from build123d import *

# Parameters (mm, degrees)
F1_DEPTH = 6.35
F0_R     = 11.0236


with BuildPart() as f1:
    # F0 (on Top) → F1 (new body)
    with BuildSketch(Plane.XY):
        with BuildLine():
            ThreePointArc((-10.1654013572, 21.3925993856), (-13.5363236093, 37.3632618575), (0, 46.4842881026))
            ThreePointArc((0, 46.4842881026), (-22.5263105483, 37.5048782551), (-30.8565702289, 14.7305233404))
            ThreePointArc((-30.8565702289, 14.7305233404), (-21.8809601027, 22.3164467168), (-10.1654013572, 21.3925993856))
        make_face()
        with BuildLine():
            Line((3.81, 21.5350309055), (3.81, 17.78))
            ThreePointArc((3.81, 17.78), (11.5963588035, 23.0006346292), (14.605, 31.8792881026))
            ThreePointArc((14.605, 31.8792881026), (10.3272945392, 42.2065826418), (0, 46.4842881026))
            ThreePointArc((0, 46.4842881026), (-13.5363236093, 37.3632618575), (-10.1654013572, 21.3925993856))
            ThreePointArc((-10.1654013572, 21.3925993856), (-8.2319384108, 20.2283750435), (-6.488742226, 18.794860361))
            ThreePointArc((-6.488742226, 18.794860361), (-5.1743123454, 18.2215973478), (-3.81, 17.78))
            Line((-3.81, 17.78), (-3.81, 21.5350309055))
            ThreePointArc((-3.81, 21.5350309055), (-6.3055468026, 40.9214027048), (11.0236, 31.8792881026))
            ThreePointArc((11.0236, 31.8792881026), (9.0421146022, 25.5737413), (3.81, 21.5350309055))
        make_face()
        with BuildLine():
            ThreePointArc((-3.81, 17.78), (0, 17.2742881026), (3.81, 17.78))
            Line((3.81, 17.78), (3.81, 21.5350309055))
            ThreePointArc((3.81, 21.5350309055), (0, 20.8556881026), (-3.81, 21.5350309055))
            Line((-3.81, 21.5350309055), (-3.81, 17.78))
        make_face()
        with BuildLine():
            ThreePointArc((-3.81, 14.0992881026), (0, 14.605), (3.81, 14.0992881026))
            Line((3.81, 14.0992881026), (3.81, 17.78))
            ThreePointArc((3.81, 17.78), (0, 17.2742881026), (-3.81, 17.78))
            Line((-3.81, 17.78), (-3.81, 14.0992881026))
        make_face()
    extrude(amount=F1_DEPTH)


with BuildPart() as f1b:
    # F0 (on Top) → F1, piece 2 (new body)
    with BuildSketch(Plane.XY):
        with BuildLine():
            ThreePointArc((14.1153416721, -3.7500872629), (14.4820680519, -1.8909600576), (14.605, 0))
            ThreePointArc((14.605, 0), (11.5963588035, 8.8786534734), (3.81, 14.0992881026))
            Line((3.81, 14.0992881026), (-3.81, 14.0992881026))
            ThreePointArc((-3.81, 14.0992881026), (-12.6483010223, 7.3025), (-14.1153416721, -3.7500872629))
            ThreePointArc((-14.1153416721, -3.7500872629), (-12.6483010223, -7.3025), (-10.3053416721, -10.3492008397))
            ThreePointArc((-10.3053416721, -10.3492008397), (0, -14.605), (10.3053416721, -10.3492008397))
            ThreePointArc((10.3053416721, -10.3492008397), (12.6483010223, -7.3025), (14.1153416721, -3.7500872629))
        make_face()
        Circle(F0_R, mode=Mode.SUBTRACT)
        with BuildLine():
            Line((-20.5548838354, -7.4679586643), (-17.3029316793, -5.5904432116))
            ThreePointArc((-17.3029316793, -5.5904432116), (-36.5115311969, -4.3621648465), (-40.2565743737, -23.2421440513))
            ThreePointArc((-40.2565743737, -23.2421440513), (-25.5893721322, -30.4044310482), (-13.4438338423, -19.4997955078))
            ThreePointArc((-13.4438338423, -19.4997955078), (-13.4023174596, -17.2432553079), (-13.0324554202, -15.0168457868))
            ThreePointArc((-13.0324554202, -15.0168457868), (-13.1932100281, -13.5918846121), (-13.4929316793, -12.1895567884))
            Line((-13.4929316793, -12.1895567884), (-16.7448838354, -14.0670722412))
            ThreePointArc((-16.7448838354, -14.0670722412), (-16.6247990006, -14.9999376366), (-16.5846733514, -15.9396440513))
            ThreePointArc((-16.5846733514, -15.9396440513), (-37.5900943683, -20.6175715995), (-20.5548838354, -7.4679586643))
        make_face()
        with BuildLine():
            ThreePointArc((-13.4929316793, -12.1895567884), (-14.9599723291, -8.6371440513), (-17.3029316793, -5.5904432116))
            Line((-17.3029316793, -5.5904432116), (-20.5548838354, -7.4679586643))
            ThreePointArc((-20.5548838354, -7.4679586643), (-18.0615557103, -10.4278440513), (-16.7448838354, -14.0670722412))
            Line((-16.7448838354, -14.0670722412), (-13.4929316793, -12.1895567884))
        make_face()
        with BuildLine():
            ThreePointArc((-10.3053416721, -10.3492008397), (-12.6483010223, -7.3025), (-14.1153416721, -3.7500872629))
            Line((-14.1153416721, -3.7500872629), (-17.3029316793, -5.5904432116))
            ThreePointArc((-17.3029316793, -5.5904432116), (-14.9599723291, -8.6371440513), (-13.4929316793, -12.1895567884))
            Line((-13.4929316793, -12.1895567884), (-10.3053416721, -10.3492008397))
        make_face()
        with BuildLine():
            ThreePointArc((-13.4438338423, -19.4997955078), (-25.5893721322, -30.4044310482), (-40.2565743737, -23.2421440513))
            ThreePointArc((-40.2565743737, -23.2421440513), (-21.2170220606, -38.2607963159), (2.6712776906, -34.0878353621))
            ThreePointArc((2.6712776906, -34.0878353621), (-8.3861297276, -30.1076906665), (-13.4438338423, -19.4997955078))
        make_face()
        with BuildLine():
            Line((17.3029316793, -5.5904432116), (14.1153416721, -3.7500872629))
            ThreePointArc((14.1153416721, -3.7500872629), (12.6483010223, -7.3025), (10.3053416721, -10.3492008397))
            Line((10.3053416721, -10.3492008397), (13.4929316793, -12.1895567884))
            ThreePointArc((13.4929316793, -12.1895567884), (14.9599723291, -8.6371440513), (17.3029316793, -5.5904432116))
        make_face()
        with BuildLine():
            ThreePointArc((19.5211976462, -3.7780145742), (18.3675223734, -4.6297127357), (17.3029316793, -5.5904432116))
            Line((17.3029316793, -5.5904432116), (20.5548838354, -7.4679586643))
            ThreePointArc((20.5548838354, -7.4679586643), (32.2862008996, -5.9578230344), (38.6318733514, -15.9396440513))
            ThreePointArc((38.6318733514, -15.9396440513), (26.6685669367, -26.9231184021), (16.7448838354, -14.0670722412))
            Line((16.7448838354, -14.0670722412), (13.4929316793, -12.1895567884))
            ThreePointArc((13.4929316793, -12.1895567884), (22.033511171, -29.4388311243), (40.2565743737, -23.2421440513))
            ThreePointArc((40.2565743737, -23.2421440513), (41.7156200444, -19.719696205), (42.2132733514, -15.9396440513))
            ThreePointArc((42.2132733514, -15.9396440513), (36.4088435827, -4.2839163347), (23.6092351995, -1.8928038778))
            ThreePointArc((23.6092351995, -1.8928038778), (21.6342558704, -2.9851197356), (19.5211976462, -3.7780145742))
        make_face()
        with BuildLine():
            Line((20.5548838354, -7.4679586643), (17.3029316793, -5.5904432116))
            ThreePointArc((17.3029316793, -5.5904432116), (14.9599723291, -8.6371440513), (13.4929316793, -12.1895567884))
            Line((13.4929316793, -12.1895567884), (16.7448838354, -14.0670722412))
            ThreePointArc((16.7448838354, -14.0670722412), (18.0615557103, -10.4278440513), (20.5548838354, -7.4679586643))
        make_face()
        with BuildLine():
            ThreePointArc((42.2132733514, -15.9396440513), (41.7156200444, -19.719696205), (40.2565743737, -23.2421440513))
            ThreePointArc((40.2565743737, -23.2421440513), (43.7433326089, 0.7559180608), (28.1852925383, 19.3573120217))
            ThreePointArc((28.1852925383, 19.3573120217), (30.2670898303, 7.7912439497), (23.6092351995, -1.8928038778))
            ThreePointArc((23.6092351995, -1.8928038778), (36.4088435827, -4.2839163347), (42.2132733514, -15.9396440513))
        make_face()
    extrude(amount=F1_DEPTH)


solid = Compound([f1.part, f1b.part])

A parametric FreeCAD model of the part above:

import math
import FreeCAD as App
import Part
import Sketcher
from FreeCAD import Vector
Q = App.Units.Quantity

doc = App.newDocument("Part")
body = doc.addObject("PartDesign::Body", "Body")

# Sketch on XY plane
sketch1 = body.newObject("Sketcher::SketchObject", "Sketch")
sketch1.AttachmentSupport = (doc.getObject("XY_Plane"), [""])
sketch1.MapMode = "FlatFace"
sketch1.addGeometry(Part.ArcOfCircle(Part.Circle(Vector(-1.2, 16.8, 0), Vector(0, 0, 1), 29.7), math.radians(88), math.radians(184)), False)
sketch1.addGeometry(Part.ArcOfCircle(Part.Circle(Vector(-17.1, 7.6, 0), Vector(0, 0, 1), 15.4), math.radians(46), math.radians(153)), False)
sketch1.addGeometry(Part.ArcOfCircle(Part.Circle(Vector(0, 31.9, 0), Vector(0, 0, 1), 14.6), math.radians(-116.38), math.radians(-105.12)), False)
sketch1.addGeometry(Part.LineSegment(Vector(-3.8, 17.8, 0), Vector(-3.8, 14.1, 0)), False)
sketch1.addGeometry(Part.ArcOfCircle(Part.Circle(Vector(0, 0, 0), Vector(0, 0, 1), 14.6), math.radians(75), math.radians(105)), False)
sketch1.addGeometry(Part.LineSegment(Vector(3.8, 14.1, 0), Vector(3.8, 17.8, 0)), False)
sketch1.addGeometry(Part.ArcOfCircle(Part.Circle(Vector(0, 31.9, 0), Vector(0, 0, 1), 14.6), math.radians(-75), math.radians(0)), False)
sketch1.addGeometry(Part.ArcOfCircle(Part.Circle(Vector(0, 31.9, 0), Vector(0, 0, 1), 14.6), math.radians(0), math.radians(90)), False)
sketch1.addGeometry(Part.ArcOfCircle(Part.Circle(Vector(0, 31.9, 0), Vector(0, 0, 1), 11), math.radians(0), math.radians(250)), False)
sketch1.addGeometry(Part.ArcOfCircle(Part.Circle(Vector(0, 31.9, 0), Vector(0, 0, 1), 11), math.radians(-70), math.radians(0)), False)
sketch1.addGeometry(Part.ArcOfCircle(Part.Circle(Vector(0, 31.9, 0), Vector(0, 0, 1), 11), math.radians(-110), math.radians(-70)), False)
sketch1.addConstraint(Sketcher.Constraint("Coincident", 0, 2, 1, 2))
sketch1.addConstraint(Sketcher.Constraint("Coincident", 1, 1, 2, 1))
sketch1.addConstraint(Sketcher.Constraint("Coincident", 2, 2, 3, 1))
sketch1.addConstraint(Sketcher.Constraint("Coincident", 3, 2, 4, 2))
sketch1.addConstraint(Sketcher.Constraint("Coincident", 4, 1, 5, 1))
sketch1.addConstraint(Sketcher.Constraint("Coincident", 5, 2, 6, 1))
sketch1.addConstraint(Sketcher.Constraint("Tangent", 6, 2, 7, 1))
sketch1.addConstraint(Sketcher.Constraint("Coincident", 7, 2, 0, 1))
sketch1.addConstraint(Sketcher.Constraint("Tangent", 8, 1, 9, 2))
sketch1.addConstraint(Sketcher.Constraint("Tangent", 9, 1, 10, 2))
sketch1.addConstraint(Sketcher.Constraint("Tangent", 10, 1, 8, 2))
sketch1.addConstraint(Sketcher.Constraint("Vertical", 3))
sketch1.addConstraint(Sketcher.Constraint("Vertical", 5))
sketch1.addConstraint(Sketcher.Constraint("Coincident", 4, 3, -1, 1))
sketch1.addConstraint(Sketcher.Constraint("Coincident", 6, 3, 2, 3))
sketch1.addConstraint(Sketcher.Constraint("Coincident", 8, 3, 2, 3))
sketch1.addConstraint(Sketcher.Constraint("Equal", 2, 4))
sketch1.addConstraint(Sketcher.Constraint("Equal", 4, 6))
sketch1.addConstraint(Sketcher.Constraint("Equal", 6, 7))
sketch1.addConstraint(Sketcher.Constraint("Symmetric", 2, 2, 5, 2, -2))
sketch1.addConstraint(Sketcher.Constraint("PointOnObject", 7, 2, -2))
sketch1.addConstraint(Sketcher.Constraint("Horizontal", 10, 3, 6, 2))
sketch1.addConstraint(Sketcher.Constraint("Horizontal", 6, 2, 8, 1))
sketch1.addConstraint(Sketcher.Constraint("Horizontal", 9, 1, 10, 1))
sketch1.addConstraint(Sketcher.Constraint("Vertical", 5, 2, 9, 1))
sketch1.addConstraint(Sketcher.Constraint("Radius", 2, Q("0.575 in")))
sketch1.addConstraint(Sketcher.Constraint("Radius", 8, Q("0.434 in")))
sketch1.addConstraint(Sketcher.Constraint("DistanceY", -1, 1, 2, 2, Q("0.7 in")))
sketch1.addConstraint(Sketcher.Constraint("DistanceX", 3, 2, 4, 1, Q("0.3 in")))
sketch1.addConstraint(Sketcher.Constraint("Radius", 1, Q("15.448309 mm")))
sketch1.addConstraint(Sketcher.Constraint("Radius", 0, Q("29.708245 mm")))
sketch1.addConstraint(Sketcher.Constraint("DistanceX", 0, 2, 0, 3, Q("29.635999 mm")))
sketch1.addConstraint(Sketcher.Constraint("DistanceX", 0, 3, -1, 1, Q("1.220571 mm")))
sketch1.addConstraint(Sketcher.Constraint("DistanceX", 1, 3, -1, 1, Q("17.14633 mm")))
pad1 = body.newObject("PartDesign::Pad", "Pad")
pad1.Profile = sketch1
pad1.Length = Q("0.25 in")
body2 = doc.addObject("PartDesign::Body", "Body001")

# Sketch on XY plane
sketch2 = body2.newObject("Sketcher::SketchObject", "Sketch001")
sketch2.AttachmentSupport = (doc.getObject("XY_Plane001"), [""])
sketch2.MapMode = "FlatFace"
sketch2.addGeometry(Part.ArcOfCircle(Part.Circle(Vector(0, 0, 0), Vector(0, 0, 1), 14.6), math.radians(-14.88), math.radians(0)), False)
sketch2.addGeometry(Part.ArcOfCircle(Part.Circle(Vector(0, 0, 0), Vector(0, 0, 1), 14.6), math.radians(0), math.radians(75)), False)
sketch2.addGeometry(Part.LineSegment(Vector(3.8, 14.1, 0), Vector(-3.8, 14.1, 0)), False)
sketch2.addGeometry(Part.ArcOfCircle(Part.Circle(Vector(0, 0, 0), Vector(0, 0, 1), 14.6), math.radians(105), math.radians(195)), False)
sketch2.addGeometry(Part.LineSegment(Vector(-14.1, -3.8, 0), Vector(-17.3, -5.6, 0)), False)
sketch2.addGeometry(Part.ArcOfCircle(Part.Circle(Vector(-27.6, -15.9, 0), Vector(0, 0, 1), 14.6), math.radians(45), math.radians(210)), False)
sketch2.addGeometry(Part.ArcOfCircle(Part.Circle(Vector(-13.9, -9.5, 0), Vector(0, 0, 1), 29.7), math.radians(-152), math.radians(-56)), False)
sketch2.addGeometry(Part.ArcOfCircle(Part.Circle(Vector(2, -18.7, 0), Vector(0, 0, 1), 15.4), math.radians(-177), math.radians(-87)), False)
sketch2.addGeometry(Part.ArcOfCircle(Part.Circle(Vector(2, -18.7, 0), Vector(0, 0, 1), 15.4), math.radians(166.38), math.radians(183.14)), False)
sketch2.addGeometry(Part.ArcOfCircle(Part.Circle(Vector(-27.6, -15.9, 0), Vector(0, 0, 1), 14.6), math.radians(3.62), math.radians(14.88)), False)
sketch2.addGeometry(Part.LineSegment(Vector(-13.5, -12.2, 0), Vector(-10.3, -10.3, 0)), False)
sketch2.addGeometry(Part.ArcOfCircle(Part.Circle(Vector(0, 0, 0), Vector(0, 0, 1), 14.6), math.radians(-135), math.radians(-45)), False)
sketch2.addGeometry(Part.LineSegment(Vector(10.3, -10.3, 0), Vector(13.5, -12.2, 0)), False)
sketch2.addGeometry(Part.ArcOfCircle(Part.Circle(Vector(27.6, -15.9, 0), Vector(0, 0, 1), 14.6), math.radians(165), math.radians(330)), False)
sketch2.addGeometry(Part.ArcOfCircle(Part.Circle(Vector(15.2, -7.3, 0), Vector(0, 0, 1), 29.7), math.radians(-32), math.radians(64)), False)
sketch2.addGeometry(Part.ArcOfCircle(Part.Circle(Vector(15.2, 11, 0), Vector(0, 0, 1), 15.4), math.radians(-57), math.radians(33)), False)
sketch2.addGeometry(Part.ArcOfCircle(Part.Circle(Vector(15.2, 11, 0), Vector(0, 0, 1), 15.4), math.radians(-73.62), math.radians(-56.86)), False)
sketch2.addGeometry(Part.ArcOfCircle(Part.Circle(Vector(27.6, -15.9, 0), Vector(0, 0, 1), 14.6), math.radians(123.62), math.radians(134.88)), False)
sketch2.addGeometry(Part.LineSegment(Vector(17.3, -5.6, 0), Vector(14.1, -3.8, 0)), False)
sketch2.addGeometry(Part.Circle(Vector(0, 0, 0), Vector(0, 0, 1), 11), False)
sketch2.addGeometry(Part.ArcOfCircle(Part.Circle(Vector(-27.6, -15.9, 0), Vector(0, 0, 1), 11), math.radians(10), math.radians(50)), False)
sketch2.addGeometry(Part.ArcOfCircle(Part.Circle(Vector(-27.6, -15.9, 0), Vector(0, 0, 1), 11), math.radians(0), math.radians(9.78)), False)
sketch2.addGeometry(Part.ArcOfCircle(Part.Circle(Vector(-27.6, -15.9, 0), Vector(0, 0, 1), 11), math.radians(50), math.radians(360)), False)
sketch2.addGeometry(Part.ArcOfCircle(Part.Circle(Vector(27.6, -15.9, 0), Vector(0, 0, 1), 11), math.radians(130), math.radians(170)), False)
sketch2.addGeometry(Part.ArcOfCircle(Part.Circle(Vector(27.6, -15.9, 0), Vector(0, 0, 1), 11), math.radians(0), math.radians(130)), False)
sketch2.addGeometry(Part.ArcOfCircle(Part.Circle(Vector(27.6, -15.9, 0), Vector(0, 0, 1), 11), math.radians(170), math.radians(360)), False)
sketch2.addConstraint(Sketcher.Constraint("Tangent", 0, 2, 1, 1))
sketch2.addConstraint(Sketcher.Constraint("Coincident", 1, 2, 2, 1))
sketch2.addConstraint(Sketcher.Constraint("Coincident", 2, 2, 3, 1))
sketch2.addConstraint(Sketcher.Constraint("Coincident", 3, 2, 4, 1))
sketch2.addConstraint(Sketcher.Constraint("Coincident", 4, 2, 5, 1))
sketch2.addConstraint(Sketcher.Constraint("Coincident", 5, 2, 6, 1))
sketch2.addConstraint(Sketcher.Constraint("Coincident", 6, 2, 7, 2))
sketch2.addConstraint(Sketcher.Constraint("Tangent", 7, 1, 8, 2))
sketch2.addConstraint(Sketcher.Constraint("Coincident", 8, 1, 9, 1))
sketch2.addConstraint(Sketcher.Constraint("Coincident", 9, 2, 10, 1))
sketch2.addConstraint(Sketcher.Constraint("Coincident", 10, 2, 11, 1))
sketch2.addConstraint(Sketcher.Constraint("Coincident", 11, 2, 12, 1))
sketch2.addConstraint(Sketcher.Constraint("Coincident", 12, 2, 13, 1))
sketch2.addConstraint(Sketcher.Constraint("Coincident", 13, 2, 14, 1))
sketch2.addConstraint(Sketcher.Constraint("Coincident", 14, 2, 15, 2))
sketch2.addConstraint(Sketcher.Constraint("Tangent", 15, 1, 16, 2))
sketch2.addConstraint(Sketcher.Constraint("Coincident", 16, 1, 17, 1))
sketch2.addConstraint(Sketcher.Constraint("Coincident", 17, 2, 18, 1))
sketch2.addConstraint(Sketcher.Constraint("Coincident", 18, 2, 0, 1))
sketch2.addConstraint(Sketcher.Constraint("Tangent", 20, 1, 21, 2))
sketch2.addConstraint(Sketcher.Constraint("Tangent", 21, 1, 22, 2))
sketch2.addConstraint(Sketcher.Constraint("Tangent", 22, 1, 20, 2))
sketch2.addConstraint(Sketcher.Constraint("Tangent", 23, 1, 24, 2))
sketch2.addConstraint(Sketcher.Constraint("Tangent", 24, 1, 25, 2))
sketch2.addConstraint(Sketcher.Constraint("Tangent", 25, 1, 23, 2))
sketch2.addConstraint(Sketcher.Constraint("Horizontal", 2))
sketch2.addConstraint(Sketcher.Constraint("Coincident", 0, 3, -1, 1))
sketch2.addConstraint(Sketcher.Constraint("Coincident", 3, 3, -1, 1))
sketch2.addConstraint(Sketcher.Constraint("Coincident", 11, 3, -1, 1))
sketch2.addConstraint(Sketcher.Constraint("Coincident", 19, 3, -1, 1))
sketch2.addConstraint(Sketcher.Constraint("Coincident", 9, 3, 5, 3))
sketch2.addConstraint(Sketcher.Constraint("Coincident", 17, 3, 13, 3))
sketch2.addConstraint(Sketcher.Constraint("Coincident", 20, 3, 5, 3))
sketch2.addConstraint(Sketcher.Constraint("Coincident", 23, 3, 13, 3))
sketch2.addConstraint(Sketcher.Constraint("Equal", 0, 1))
sketch2.addConstraint(Sketcher.Constraint("Equal", 1, 3))
sketch2.addConstraint(Sketcher.Constraint("Equal", 3, 5))
sketch2.addConstraint(Sketcher.Constraint("Equal", 7, 8))
sketch2.addConstraint(Sketcher.Constraint("Equal", 5, 9))
sketch2.addConstraint(Sketcher.Constraint("Equal", 9, 11))
sketch2.addConstraint(Sketcher.Constraint("Equal", 11, 13))
sketch2.addConstraint(Sketcher.Constraint("Equal", 6, 14))
sketch2.addConstraint(Sketcher.Constraint("Equal", 8, 15))
sketch2.addConstraint(Sketcher.Constraint("Equal", 15, 16))
sketch2.addConstraint(Sketcher.Constraint("Equal", 13, 17))
sketch2.addConstraint(Sketcher.Constraint("Equal", 19, 20))
sketch2.addConstraint(Sketcher.Constraint("Equal", 22, 23))
sketch2.addConstraint(Sketcher.Constraint("Symmetric", 5, 3, 13, 3, -2))
sketch2.addConstraint(Sketcher.Constraint("PointOnObject", 0, 2, -1))
sketch2.addConstraint(Sketcher.Constraint("Parallel", 4, 10))
sketch2.addConstraint(Sketcher.Constraint("Parallel", 12, 18))
sketch2.addConstraint(Sketcher.Constraint("Horizontal", 10, 2, 11, 2))
sketch2.addConstraint(Sketcher.Constraint("Horizontal", 9, 2, 12, 2))
sketch2.addConstraint(Sketcher.Constraint("Horizontal", 5, 2, 13, 2))
sketch2.addConstraint(Sketcher.Constraint("Horizontal", 4, 2, 17, 2))
sketch2.addConstraint(Sketcher.Constraint("Horizontal", 25, 3, 21, 1))
sketch2.addConstraint(Sketcher.Constraint("Horizontal", 22, 1, 23, 1))
sketch2.addConstraint(Sketcher.Constraint("Horizontal", 21, 1, 24, 1))
sketch2.addConstraint(Sketcher.Constraint("Horizontal", 20, 1, 25, 1))
sketch2.addConstraint(Sketcher.Constraint("Equal", 4, 10))
sketch2.addConstraint(Sketcher.Constraint("Diameter", 19, Q("0.868 in")))
sketch2.addConstraint(Sketcher.Constraint("DistanceX", 2, 2, 2, 1, Q("0.3 in")))
sketch2.addConstraint(Sketcher.Constraint("Angle", 4, Q("-150 deg")))
sketch2.addConstraint(Sketcher.Constraint("Radius", 0, Q("0.575 in")))
sketch2.addConstraint(Sketcher.Constraint("DistanceX", 4, 2, 9, 2, Q("0.15 in")))
sketch2.addConstraint(Sketcher.Constraint("DistanceX", 22, 1, 20, 1, Q("0.15 in")))
sketch2.addConstraint(Sketcher.Constraint("Radius", 7, Q("15.448309 mm")))
sketch2.addConstraint(Sketcher.Constraint("Radius", 6, Q("29.708245 mm")))
sketch2.addConstraint(Sketcher.Constraint("DistanceY", 5, 2, 9, 3, Q("0.2875 in")))
sketch2.addConstraint(Sketcher.Constraint("DistanceY", 10, 2, -1, 1, Q("10.349201 mm")))
sketch2.addConstraint(Sketcher.Constraint("DistanceX", 15, 3, 17, 3, Q("12.443299 mm")))
sketch2.addConstraint(Sketcher.Constraint("DistanceY", 21, 3, 8, 1, Q("0.922798 mm")))
sketch2.addConstraint(Sketcher.Constraint("DistanceY", 9, 2, 22, 1, Q("4.721598 mm")))
sketch2.addConstraint(Sketcher.Constraint("Distance", 4, Q("3.680712 mm")))
sketch2.addConstraint(Sketcher.Constraint("DistanceY", 6, 3, -1, 1, Q("9.457609 mm")))
sketch2.addConstraint(Sketcher.Constraint("DistanceY", 7, 3, -1, 1, Q("18.65494 mm")))
sketch2.addConstraint(Sketcher.Constraint("DistanceX", -1, 1, 14, 3, Q("15.160489 mm")))
sketch2.addConstraint(Sketcher.Constraint("DistanceY", 17, 3, 15, 3, Q("26.983018 mm")))
sketch2.addConstraint(Sketcher.Constraint("DistanceX", 21, 3, 7, 1, Q("14.16444 mm")))
sketch2.addConstraint(Sketcher.Constraint("DistanceX", 15, 1, 17, 3, Q("3.999038 mm")))
pad2 = body2.newObject("PartDesign::Pad", "Pad001")
pad2.Profile = sketch2
pad2.Length = Q("0.25 in")

doc.recompute()
